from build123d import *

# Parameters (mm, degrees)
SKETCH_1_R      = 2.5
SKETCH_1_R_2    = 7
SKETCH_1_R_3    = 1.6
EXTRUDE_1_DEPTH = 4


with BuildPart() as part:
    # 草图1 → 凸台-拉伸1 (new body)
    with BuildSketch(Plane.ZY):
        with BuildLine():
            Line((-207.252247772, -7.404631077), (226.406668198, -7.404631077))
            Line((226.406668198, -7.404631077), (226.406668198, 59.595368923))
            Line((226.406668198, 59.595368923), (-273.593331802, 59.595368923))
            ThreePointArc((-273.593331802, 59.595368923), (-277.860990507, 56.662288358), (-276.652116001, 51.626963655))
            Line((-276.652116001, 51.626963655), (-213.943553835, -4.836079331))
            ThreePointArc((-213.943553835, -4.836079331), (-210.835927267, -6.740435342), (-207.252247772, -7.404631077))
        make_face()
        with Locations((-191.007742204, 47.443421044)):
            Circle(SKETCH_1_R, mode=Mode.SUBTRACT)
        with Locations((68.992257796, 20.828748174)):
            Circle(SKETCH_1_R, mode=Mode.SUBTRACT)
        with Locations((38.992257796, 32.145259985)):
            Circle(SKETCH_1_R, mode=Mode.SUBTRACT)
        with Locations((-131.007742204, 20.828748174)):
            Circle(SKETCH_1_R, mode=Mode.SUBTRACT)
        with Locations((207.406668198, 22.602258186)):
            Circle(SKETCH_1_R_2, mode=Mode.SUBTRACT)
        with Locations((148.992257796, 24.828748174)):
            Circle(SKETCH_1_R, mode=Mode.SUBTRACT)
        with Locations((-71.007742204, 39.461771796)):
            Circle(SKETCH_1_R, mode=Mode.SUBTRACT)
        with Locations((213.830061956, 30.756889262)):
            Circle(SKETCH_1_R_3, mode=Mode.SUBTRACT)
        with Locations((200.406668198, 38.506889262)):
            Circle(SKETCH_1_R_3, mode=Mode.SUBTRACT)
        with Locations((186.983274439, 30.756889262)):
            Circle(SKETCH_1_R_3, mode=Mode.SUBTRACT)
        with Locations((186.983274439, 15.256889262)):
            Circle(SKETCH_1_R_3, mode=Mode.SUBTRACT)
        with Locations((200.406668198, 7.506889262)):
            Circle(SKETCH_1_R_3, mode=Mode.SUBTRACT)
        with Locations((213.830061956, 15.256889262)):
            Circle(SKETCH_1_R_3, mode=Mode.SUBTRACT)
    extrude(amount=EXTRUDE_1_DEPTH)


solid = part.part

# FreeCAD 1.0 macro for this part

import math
import FreeCAD as App
import Part
import Sketcher
Q = App.Units.Quantity

doc = App.newDocument("Part")
body = doc.addObject("PartDesign::Body", "Body")

# Sketch on YZ plane
sketch1 = doc.addObject("Sketcher::SketchObject", "Sketch")
body.addObject(sketch1)
sketch1.AttachmentSupport = (doc.YZ_Plane, [""])
sketch1.MapMode = "FlatFace"
sketch1.addGeometry([
    Part.LineSegment(App.Vector(-7.4, -207.3, 0), App.Vector(-7.4, 226.4, 0)),  # 0
    Part.LineSegment(App.Vector(-7.4, 226.4, 0), App.Vector(59.6, 226.4, 0)),  # 1
    Part.LineSegment(App.Vector(59.6, 226.4, 0), App.Vector(59.6, -273.6, 0)),  # 2
    Part.ArcOfCircle(Part.Circle(App.Vector(55, -273.6, 0), App.Vector(0, 0, 1), 4.6), math.radians(-138), math.radians(0)),  # 3
    Part.LineSegment(App.Vector(51.6, -276.7, 0), App.Vector(-4.8, -213.9, 0)),  # 4
    Part.ArcOfCircle(Part.Circle(App.Vector(2.6, -207.3, 0), App.Vector(0, 0, 1), 10), math.radians(180), math.radians(222)),  # 5
    Part.Circle(App.Vector(20.8, -131, 0), App.Vector(0, 0, 1), 2.5),  # 6
    Part.Circle(App.Vector(7.5, 200.4, 0), App.Vector(0, 0, 1), 1.6),  # 7
    Part.Circle(App.Vector(15.3, 187, 0), App.Vector(0, 0, 1), 1.6),  # 8
    Part.Circle(App.Vector(15.3, 213.8, 0), App.Vector(0, 0, 1), 1.6),  # 9
    Part.Circle(App.Vector(20.8, 69, 0), App.Vector(0, 0, 1), 2.5),  # 10
    Part.Circle(App.Vector(24.8, 149, 0), App.Vector(0, 0, 1), 2.5),  # 11
    Part.Circle(App.Vector(22.6, 207.4, 0), App.Vector(0, 0, 1), 7),  # 12
    Part.Circle(App.Vector(47.4, -191, 0), App.Vector(0, 0, 1), 2.5),  # 13
    Part.Circle(App.Vector(39.5, -71, 0), App.Vector(0, 0, 1), 2.5),  # 14
    Part.Circle(App.Vector(32.1, 39, 0), App.Vector(0, 0, 1), 2.5),  # 15
    Part.Circle(App.Vector(30.8, 187, 0), App.Vector(0, 0, 1), 1.6),  # 16
    Part.Circle(App.Vector(30.8, 213.8, 0), App.Vector(0, 0, 1), 1.6),  # 17
    Part.Circle(App.Vector(38.5, 200.4, 0), App.Vector(0, 0, 1), 1.6),  # 18
], False)
sketch1.addConstraint([
    Sketcher.Constraint("Coincident", 0, 2, 1, 1),
    Sketcher.Constraint("Coincident", 1, 2, 2, 1),
    Sketcher.Constraint("Tangent", 2, 2, 3, 2),
    Sketcher.Constraint("Tangent", 3, 1, 4, 1),
    Sketcher.Constraint("Tangent", 4, 2, 5, 2),
    Sketcher.Constraint("Tangent", 5, 1, 0, 1),
    Sketcher.Constraint("Vertical", 0),
    Sketcher.Constraint("Horizontal", 1),
    Sketcher.Constraint("Vertical", 2),
    Sketcher.Constraint("Equal", 7, 8),
    Sketcher.Constraint("Equal", 8, 9),
    Sketcher.Constraint("Equal", 6, 10),
    Sketcher.Constraint("Equal", 10, 11),
    Sketcher.Constraint("Equal", 11, 13),
    Sketcher.Constraint("Equal", 13, 14),
    Sketcher.Constraint("Equal", 14, 15),
    Sketcher.Constraint("Equal", 9, 16),
    Sketcher.Constraint("Equal", 16, 17),
    Sketcher.Constraint("Equal", 17, 18),
    Sketcher.Constraint("Horizontal", 8, 3, 16, 3),
    Sketcher.Constraint("Horizontal", 9, 3, 17, 3),
    Sketcher.Constraint("Horizontal", 7, 3, 18, 3),
    Sketcher.Constraint("Vertical", 8, 3, 9, 3),
    Sketcher.Constraint("Vertical", 6, 3, 10, 3),
    Sketcher.Constraint("Vertical", 16, 3, 17, 3),
    Sketcher.Constraint("Diameter", 6, 5.0),
    Sketcher.Constraint("Diameter", 12, 14.0),
    Sketcher.Constraint("Radius", 5, 10.0),
    Sketcher.Constraint("Diameter", 7, 3.2),
    Sketcher.Constraint("DistanceX", 1, 1, 1, 2, 67.0),
    Sketcher.Constraint("DistanceY", 2, 2, 2, 1, 500.0),
    Sketcher.Constraint("Angle", 4, Q("132 deg")),
    Sketcher.Constraint("DistanceY", 3, 3, 7, 3, 474.0),
    Sketcher.Constraint("DistanceY", 6, 3, 10, 3, 200.0),
    Sketcher.Constraint("DistanceX", 10, 3, 11, 3, 4.0),
    Sketcher.Constraint("DistanceY", 10, 3, 11, 3, 80.0),
    Sketcher.Constraint("DistanceY", 7, 3, 12, 3, 7.0),
    Sketcher.Constraint("DistanceY", 13, 3, 6, 3, 60.0),
    Sketcher.Constraint("DistanceY", 6, 3, 14, 3, 60.0),
    Sketcher.Constraint("DistanceY", 15, 3, 10, 3, 30.0),
    Sketcher.Constraint("DistanceX", 8, 3, 16, 3, 15.5),
    Sketcher.Constraint("Radius", 3, 4.571281),
    Sketcher.Constraint("DistanceX", 7, 3, 8, 3, 7.75),
    Sketcher.Constraint("DistanceX", 17, 3, 18, 3, 7.75),
    Sketcher.Constraint("DistanceX", 7, 3, 3, 3, 47.517198),
    Sketcher.Constraint("DistanceX", 4, 2, 13, 3, 52.2795),
    Sketcher.Constraint("DistanceY", 3, 3, -1, 1, 273.593332),
    Sketcher.Constraint("DistanceX", -1, 1, 5, 3, 2.595369),
    Sketcher.Constraint("DistanceX", -1, 1, 6, 3, 20.828748),
    Sketcher.Constraint("DistanceY", -1, 1, 9, 3, 213.830062),
    Sketcher.Constraint("DistanceX", -1, 1, 12, 3, 22.602258),
    Sketcher.Constraint("DistanceX", -1, 1, 14, 3, 39.461772),
    Sketcher.Constraint("DistanceX", -1, 1, 15, 3, 32.14526),
    Sketcher.Constraint("DistanceY", 3, 3, 6, 3, 142.58559),
    Sketcher.Constraint("DistanceY", -1, 1, 8, 3, 186.983274),
])
pad1 = doc.addObject("PartDesign::Pad", "Pad")
body.addObject(pad1)
pad1.Profile = sketch1
pad1.Length = 4
pad1.Reversed = True

doc.recompute()
